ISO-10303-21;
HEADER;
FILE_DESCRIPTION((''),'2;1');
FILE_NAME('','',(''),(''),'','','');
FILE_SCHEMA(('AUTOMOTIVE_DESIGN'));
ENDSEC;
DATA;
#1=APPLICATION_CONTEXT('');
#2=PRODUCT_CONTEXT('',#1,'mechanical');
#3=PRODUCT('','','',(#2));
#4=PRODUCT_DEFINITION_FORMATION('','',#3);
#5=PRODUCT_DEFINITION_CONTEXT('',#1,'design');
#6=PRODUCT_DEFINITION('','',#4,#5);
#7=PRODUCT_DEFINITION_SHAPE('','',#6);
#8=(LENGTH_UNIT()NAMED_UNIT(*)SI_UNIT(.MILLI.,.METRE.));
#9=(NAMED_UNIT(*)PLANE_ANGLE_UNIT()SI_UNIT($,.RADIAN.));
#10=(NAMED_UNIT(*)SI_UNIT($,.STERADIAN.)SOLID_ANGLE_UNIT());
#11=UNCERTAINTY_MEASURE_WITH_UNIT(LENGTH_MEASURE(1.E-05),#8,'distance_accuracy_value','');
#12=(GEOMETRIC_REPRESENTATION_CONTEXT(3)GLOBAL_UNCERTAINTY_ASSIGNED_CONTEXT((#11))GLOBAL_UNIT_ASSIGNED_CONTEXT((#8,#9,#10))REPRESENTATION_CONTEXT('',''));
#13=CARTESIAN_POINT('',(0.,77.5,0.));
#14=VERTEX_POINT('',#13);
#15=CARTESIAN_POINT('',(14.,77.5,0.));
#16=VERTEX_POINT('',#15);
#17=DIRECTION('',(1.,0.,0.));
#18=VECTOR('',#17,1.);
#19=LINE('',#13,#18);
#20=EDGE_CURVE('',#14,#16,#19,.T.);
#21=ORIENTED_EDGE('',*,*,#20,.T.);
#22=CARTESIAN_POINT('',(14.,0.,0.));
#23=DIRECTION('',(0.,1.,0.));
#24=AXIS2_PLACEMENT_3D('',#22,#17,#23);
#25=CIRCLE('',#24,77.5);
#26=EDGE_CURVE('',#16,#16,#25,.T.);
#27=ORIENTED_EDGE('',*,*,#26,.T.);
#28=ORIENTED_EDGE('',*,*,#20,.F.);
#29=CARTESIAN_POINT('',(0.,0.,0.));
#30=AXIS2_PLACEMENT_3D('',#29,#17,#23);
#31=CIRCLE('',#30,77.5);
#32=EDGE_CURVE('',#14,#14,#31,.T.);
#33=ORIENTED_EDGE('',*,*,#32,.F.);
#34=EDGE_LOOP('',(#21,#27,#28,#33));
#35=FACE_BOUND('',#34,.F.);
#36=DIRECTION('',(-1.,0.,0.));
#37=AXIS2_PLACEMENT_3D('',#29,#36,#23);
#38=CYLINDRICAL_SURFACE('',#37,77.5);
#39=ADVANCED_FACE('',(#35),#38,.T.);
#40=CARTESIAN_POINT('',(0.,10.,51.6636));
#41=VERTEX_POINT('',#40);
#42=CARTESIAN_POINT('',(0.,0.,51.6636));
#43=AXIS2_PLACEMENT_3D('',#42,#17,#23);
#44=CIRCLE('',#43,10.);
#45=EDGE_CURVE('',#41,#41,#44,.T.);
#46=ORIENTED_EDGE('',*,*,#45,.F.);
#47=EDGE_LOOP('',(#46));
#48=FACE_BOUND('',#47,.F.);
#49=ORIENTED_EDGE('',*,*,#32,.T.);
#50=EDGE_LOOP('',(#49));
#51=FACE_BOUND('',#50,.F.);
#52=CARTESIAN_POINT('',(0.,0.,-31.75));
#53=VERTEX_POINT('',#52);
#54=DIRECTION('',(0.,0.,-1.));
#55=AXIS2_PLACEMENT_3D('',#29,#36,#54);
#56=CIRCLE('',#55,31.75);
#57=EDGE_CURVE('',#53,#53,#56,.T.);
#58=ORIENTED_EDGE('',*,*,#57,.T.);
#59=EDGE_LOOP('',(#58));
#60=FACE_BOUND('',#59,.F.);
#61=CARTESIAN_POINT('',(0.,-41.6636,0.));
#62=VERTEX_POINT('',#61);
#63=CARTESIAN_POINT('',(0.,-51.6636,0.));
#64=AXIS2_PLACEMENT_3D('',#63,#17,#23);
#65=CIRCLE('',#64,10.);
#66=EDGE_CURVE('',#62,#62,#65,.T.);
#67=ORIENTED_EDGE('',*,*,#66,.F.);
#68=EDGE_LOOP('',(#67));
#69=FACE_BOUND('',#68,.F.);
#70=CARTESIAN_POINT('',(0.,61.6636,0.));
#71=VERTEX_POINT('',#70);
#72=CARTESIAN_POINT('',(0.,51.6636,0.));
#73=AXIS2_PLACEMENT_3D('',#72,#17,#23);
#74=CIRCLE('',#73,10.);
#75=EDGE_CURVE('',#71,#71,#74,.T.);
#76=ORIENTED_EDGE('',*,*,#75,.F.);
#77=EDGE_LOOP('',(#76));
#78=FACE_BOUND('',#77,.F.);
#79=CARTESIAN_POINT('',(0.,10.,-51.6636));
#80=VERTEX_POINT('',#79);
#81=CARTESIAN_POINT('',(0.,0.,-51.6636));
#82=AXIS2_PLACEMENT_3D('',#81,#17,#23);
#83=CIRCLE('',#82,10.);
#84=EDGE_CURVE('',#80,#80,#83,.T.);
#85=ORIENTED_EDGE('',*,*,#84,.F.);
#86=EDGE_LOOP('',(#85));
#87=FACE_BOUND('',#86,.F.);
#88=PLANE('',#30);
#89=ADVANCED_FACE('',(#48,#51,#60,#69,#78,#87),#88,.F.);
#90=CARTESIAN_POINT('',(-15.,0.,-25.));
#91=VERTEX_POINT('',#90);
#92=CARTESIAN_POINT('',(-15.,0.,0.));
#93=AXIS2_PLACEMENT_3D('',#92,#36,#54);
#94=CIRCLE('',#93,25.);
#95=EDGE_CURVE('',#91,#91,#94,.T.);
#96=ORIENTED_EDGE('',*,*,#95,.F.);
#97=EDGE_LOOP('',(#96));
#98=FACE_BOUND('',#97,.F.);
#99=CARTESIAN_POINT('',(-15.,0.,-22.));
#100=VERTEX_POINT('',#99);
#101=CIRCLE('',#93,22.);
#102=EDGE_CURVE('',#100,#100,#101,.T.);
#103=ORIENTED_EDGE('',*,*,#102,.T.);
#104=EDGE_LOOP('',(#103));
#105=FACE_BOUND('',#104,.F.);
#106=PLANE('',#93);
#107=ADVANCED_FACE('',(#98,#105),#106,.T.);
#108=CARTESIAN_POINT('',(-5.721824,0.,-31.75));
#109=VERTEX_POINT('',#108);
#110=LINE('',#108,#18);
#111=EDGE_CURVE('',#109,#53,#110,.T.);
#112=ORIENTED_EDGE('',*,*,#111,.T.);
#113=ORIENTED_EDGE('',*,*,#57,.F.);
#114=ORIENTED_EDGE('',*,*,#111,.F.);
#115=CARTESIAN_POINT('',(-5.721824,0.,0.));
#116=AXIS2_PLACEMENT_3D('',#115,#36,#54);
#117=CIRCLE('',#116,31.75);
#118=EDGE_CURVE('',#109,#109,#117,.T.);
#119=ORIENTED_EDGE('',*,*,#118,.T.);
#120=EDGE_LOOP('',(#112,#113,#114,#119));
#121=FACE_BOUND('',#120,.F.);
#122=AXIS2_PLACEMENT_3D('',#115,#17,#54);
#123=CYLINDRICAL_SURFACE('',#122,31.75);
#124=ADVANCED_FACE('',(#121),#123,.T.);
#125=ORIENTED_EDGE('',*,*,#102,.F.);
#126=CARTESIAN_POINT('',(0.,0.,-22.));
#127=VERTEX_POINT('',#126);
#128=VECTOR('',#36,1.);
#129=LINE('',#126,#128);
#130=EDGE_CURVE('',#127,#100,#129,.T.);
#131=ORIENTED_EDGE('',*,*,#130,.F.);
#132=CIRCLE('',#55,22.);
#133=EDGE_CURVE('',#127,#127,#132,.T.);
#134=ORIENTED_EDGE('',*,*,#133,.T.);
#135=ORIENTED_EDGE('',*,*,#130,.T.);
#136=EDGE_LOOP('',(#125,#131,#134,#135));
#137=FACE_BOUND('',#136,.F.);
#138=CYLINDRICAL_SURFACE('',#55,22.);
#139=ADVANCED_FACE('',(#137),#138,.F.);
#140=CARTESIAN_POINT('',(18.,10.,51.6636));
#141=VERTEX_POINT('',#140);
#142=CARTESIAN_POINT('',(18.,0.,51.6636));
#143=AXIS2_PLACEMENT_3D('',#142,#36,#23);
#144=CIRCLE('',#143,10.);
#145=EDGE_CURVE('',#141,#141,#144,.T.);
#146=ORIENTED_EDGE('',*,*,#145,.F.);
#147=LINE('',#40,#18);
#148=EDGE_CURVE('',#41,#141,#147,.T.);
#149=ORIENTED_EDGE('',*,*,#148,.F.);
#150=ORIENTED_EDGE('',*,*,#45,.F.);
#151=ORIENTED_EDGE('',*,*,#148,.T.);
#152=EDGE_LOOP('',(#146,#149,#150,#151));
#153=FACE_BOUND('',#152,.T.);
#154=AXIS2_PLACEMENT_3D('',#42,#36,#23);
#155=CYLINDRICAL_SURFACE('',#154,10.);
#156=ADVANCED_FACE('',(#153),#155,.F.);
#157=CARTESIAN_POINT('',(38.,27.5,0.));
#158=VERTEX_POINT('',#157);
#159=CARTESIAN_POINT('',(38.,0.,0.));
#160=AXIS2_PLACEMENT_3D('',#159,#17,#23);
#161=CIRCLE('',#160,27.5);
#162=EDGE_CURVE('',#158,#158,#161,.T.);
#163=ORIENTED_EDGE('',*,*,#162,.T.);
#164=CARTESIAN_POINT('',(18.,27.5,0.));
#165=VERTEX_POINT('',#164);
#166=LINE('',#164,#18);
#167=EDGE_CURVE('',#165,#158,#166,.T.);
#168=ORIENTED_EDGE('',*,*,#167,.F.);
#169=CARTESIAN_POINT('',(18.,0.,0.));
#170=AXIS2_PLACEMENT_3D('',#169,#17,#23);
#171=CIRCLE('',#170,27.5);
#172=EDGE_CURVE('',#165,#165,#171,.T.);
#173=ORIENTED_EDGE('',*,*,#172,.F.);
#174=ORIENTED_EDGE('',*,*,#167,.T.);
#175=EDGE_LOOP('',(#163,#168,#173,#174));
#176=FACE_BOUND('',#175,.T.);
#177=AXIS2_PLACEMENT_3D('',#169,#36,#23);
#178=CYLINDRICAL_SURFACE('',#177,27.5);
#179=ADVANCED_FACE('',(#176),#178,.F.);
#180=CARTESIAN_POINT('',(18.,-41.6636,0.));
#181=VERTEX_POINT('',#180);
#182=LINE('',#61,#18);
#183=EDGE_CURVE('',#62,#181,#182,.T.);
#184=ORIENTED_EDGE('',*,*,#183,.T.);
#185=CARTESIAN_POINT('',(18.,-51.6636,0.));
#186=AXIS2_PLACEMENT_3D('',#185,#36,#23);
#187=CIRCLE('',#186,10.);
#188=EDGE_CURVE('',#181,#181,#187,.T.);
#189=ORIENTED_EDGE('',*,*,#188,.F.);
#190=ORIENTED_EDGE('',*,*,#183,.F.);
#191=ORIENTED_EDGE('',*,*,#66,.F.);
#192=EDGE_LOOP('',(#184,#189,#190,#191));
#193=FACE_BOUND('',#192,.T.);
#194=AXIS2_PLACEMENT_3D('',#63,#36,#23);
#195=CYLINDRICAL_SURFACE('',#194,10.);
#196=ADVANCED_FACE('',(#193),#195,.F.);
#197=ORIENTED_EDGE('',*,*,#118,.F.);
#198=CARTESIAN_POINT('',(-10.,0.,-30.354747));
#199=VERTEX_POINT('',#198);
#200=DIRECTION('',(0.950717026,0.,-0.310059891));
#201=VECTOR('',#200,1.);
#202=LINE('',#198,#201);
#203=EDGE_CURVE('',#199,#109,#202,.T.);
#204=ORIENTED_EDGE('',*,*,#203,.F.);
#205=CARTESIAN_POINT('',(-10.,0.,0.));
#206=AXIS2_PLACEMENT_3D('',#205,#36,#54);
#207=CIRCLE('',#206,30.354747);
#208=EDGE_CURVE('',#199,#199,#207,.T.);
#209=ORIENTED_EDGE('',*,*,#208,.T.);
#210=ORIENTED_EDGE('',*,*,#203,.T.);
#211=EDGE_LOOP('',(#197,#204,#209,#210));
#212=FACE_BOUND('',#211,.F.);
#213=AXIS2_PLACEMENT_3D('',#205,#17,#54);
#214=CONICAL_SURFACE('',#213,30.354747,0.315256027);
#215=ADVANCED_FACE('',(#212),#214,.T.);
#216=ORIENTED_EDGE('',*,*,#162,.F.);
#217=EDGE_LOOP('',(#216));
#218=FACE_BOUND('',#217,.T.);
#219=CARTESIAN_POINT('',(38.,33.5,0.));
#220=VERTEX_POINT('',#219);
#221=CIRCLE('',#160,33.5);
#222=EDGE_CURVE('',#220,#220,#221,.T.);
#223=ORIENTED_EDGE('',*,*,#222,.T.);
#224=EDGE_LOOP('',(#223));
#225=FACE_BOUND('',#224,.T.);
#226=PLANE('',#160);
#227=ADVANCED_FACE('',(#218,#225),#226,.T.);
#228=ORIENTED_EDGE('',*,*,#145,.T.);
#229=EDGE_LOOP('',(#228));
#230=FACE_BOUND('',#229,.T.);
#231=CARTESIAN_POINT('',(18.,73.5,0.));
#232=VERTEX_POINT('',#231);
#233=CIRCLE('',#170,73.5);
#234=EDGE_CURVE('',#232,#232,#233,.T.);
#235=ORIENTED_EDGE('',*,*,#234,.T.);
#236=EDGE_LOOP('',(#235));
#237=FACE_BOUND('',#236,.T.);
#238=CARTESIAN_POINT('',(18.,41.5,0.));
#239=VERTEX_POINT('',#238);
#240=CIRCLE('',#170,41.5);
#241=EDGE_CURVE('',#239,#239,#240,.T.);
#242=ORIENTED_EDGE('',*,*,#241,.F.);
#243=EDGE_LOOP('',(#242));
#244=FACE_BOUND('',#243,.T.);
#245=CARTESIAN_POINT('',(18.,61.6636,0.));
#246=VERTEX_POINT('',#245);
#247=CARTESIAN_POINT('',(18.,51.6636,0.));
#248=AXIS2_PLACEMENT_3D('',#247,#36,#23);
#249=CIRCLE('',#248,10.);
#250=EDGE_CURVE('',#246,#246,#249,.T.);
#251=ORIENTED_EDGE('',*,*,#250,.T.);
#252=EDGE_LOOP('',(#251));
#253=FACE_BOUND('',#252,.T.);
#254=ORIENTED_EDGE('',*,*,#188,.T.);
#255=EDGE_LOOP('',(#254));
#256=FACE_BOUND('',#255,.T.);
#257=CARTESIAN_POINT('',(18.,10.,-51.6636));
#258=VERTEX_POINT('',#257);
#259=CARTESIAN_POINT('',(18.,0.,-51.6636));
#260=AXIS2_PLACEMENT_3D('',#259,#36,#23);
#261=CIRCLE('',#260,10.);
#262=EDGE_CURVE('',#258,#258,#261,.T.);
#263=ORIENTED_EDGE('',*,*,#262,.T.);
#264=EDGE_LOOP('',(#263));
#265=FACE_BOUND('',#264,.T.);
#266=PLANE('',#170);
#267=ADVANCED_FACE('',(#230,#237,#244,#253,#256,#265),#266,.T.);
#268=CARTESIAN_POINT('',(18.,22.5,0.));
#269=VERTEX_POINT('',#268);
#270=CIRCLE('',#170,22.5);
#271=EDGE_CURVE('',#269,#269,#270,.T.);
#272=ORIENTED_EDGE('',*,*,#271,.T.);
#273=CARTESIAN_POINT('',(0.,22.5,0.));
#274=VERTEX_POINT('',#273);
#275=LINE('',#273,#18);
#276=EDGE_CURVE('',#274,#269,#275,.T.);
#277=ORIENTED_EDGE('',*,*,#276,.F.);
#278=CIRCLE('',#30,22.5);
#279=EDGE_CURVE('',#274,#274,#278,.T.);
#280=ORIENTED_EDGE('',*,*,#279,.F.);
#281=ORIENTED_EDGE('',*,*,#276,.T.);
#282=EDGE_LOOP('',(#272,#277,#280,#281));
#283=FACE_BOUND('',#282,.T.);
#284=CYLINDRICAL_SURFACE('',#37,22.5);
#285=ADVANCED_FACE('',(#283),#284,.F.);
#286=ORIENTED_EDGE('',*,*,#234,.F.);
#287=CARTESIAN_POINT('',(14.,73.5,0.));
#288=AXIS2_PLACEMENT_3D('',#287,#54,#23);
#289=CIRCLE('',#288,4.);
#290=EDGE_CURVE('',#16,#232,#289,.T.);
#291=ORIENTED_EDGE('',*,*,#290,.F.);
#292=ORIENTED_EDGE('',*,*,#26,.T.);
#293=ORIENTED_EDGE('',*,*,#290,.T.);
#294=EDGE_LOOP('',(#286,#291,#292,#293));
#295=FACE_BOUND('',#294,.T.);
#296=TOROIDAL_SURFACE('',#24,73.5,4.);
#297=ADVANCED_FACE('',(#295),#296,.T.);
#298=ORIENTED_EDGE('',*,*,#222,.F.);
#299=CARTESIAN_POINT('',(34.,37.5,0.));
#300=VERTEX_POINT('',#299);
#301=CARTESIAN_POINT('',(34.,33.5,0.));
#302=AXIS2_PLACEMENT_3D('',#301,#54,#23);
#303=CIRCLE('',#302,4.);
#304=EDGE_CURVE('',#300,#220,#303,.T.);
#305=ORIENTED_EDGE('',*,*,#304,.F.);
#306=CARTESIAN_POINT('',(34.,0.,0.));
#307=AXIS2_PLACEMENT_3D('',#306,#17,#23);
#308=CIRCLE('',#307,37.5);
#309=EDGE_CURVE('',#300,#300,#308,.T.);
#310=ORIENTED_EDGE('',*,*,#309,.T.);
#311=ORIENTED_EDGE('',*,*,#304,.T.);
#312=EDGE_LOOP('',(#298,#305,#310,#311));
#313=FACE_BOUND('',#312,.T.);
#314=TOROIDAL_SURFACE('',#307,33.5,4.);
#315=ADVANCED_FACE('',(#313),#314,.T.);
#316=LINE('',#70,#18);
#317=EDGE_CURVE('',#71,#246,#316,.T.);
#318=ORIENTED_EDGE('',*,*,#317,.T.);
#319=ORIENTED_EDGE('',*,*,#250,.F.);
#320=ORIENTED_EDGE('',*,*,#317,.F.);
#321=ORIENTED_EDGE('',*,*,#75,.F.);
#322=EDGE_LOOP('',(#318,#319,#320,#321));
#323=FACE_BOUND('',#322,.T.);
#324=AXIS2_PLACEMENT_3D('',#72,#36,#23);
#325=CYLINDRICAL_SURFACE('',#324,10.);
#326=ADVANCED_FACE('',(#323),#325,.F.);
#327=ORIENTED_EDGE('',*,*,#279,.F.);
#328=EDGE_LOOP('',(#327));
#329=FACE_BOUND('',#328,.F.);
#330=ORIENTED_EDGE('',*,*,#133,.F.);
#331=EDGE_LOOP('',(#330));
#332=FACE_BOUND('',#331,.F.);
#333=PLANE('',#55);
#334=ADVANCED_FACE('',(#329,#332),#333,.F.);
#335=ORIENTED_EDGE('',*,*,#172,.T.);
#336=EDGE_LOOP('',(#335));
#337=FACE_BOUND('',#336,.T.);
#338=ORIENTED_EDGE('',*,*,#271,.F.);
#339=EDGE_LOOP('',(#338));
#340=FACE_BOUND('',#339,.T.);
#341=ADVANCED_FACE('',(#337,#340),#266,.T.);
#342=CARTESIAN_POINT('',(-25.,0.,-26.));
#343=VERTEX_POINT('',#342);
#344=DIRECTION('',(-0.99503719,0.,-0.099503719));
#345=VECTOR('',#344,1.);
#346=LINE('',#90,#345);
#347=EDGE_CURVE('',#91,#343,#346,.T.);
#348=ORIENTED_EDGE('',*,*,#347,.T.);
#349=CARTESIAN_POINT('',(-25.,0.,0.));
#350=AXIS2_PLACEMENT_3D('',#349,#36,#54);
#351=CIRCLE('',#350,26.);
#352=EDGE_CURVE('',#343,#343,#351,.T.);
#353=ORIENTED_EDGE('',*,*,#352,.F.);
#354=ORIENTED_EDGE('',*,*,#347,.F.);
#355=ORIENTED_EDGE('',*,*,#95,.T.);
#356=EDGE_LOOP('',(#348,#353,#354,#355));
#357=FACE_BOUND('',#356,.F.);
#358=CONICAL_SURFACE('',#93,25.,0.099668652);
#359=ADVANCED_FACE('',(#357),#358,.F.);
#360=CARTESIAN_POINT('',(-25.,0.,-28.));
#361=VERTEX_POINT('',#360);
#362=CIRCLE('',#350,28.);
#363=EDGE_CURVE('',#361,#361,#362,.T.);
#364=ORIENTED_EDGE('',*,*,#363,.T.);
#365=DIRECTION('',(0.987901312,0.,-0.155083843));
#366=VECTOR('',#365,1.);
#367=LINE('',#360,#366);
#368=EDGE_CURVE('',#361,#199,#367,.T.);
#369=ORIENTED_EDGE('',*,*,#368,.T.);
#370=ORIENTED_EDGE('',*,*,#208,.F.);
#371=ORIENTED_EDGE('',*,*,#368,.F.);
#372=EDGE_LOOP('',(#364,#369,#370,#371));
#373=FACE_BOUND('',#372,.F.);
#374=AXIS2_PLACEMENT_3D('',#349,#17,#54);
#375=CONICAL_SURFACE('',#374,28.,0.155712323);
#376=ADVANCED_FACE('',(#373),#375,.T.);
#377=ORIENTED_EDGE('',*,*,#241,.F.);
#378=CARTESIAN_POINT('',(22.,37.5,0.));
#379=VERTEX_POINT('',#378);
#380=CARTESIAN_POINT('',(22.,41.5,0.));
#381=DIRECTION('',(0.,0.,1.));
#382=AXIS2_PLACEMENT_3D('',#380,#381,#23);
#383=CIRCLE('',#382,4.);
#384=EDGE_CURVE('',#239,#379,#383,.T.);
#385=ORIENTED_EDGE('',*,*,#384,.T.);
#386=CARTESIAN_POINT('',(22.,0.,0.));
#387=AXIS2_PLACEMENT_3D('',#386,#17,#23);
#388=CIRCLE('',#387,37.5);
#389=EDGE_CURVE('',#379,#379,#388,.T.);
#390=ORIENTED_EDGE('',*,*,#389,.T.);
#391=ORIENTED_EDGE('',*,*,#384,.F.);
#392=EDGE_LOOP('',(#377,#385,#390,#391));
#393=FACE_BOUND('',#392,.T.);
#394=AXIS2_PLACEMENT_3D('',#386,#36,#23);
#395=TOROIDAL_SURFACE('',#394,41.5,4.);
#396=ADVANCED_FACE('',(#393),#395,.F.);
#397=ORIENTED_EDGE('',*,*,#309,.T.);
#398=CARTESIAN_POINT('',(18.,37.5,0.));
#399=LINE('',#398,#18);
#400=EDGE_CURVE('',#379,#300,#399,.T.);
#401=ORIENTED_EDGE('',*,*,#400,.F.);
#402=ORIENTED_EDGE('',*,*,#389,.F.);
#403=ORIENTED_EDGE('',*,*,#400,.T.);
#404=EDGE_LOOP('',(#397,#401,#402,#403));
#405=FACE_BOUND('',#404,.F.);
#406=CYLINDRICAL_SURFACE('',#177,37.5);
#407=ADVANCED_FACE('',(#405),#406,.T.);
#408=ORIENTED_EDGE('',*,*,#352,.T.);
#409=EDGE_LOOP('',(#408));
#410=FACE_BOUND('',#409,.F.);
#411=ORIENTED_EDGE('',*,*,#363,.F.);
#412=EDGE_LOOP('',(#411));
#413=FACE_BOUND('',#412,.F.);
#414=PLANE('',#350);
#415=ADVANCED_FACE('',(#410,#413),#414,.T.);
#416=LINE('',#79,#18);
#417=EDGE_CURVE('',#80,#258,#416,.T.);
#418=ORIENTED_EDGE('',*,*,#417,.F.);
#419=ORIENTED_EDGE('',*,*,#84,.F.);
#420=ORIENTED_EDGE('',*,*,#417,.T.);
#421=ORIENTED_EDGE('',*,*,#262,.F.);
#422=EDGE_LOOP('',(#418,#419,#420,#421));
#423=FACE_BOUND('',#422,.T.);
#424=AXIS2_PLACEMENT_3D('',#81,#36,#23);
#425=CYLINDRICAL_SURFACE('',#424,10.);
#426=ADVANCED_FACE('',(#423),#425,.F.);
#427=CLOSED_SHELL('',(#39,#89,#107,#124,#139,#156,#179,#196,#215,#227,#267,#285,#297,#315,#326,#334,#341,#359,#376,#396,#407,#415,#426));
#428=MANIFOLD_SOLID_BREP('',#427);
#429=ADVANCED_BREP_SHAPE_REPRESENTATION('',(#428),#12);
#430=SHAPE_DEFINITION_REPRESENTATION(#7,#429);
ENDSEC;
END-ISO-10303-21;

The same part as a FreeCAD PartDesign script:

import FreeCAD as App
import Part
import Sketcher
Q = App.Units.Quantity


def edges_at(feature, points):
    """Names of the edges that pass closest to the given points."""
    edges = feature.Shape.Edges
    near = lambda p: min(range(len(edges)), key=lambda i: edges[i].distToShape(Part.Vertex(*p))[0])
    return sorted({f"Edge{near(p) + 1}" for p in points})

doc = App.newDocument("Part")
body = doc.addObject("PartDesign::Body", "Body")

# Sketch on YZ plane
sketch1 = doc.addObject("Sketcher::SketchObject", "Sketch")
body.addObject(sketch1)
sketch1.AttachmentSupport = (doc.YZ_Plane, [""])
sketch1.MapMode = "FlatFace"
sketch1.addGeometry([
    Part.Circle(App.Vector(0, 0, 0), App.Vector(0, 0, 1), 77.5),
    Part.Circle(App.Vector(0, 0, 0), App.Vector(0, 0, 1), 22.5),
], False)
sketch1.addConstraint([
    Sketcher.Constraint("Coincident", 0, 3, -1, 1),
    Sketcher.Constraint("Coincident", 1, 3, -1, 1),
    Sketcher.Constraint("Diameter", 0, Q("155 mm")),
    Sketcher.Constraint("Diameter", 1, Q("45 mm")),
])
pad1 = doc.addObject("PartDesign::Pad", "Pad")
body.addObject(pad1)
pad1.Profile = sketch1
pad1.Length = 18

# Sketch on YZ plane
sketch2 = doc.addObject("Sketcher::SketchObject", "Sketch001")
body.addObject(sketch2)
sketch2.AttachmentSupport = (doc.YZ_Plane, [""])
sketch2.MapMode = "FlatFace"
sketch2.AttachmentOffset = App.Placement(App.Vector(0, 0, 18), App.Rotation())
sketch2.addGeometry([
    Part.Circle(App.Vector(0, 0, 0), App.Vector(0, 0, 1), 37.5),
    Part.Circle(App.Vector(0, 0, 0), App.Vector(0, 0, 1), 27.5),
], False)
sketch2.addConstraint([
    Sketcher.Constraint("Coincident", 0, 3, -1, 1),
    Sketcher.Constraint("Coincident", 1, 3, -1, 1),
    Sketcher.Constraint("Diameter", 0, Q("75 mm")),
    Sketcher.Constraint("Diameter", 1, Q("55 mm")),
])
pad2 = doc.addObject("PartDesign::Pad", "Pad001")
body.addObject(pad2)
pad2.Profile = sketch2
pad2.Length = 20
doc.recompute()

fillet = doc.addObject("PartDesign::Fillet", "Fillet")
body.addObject(fillet)
fillet.Base = (pad2, edges_at(pad2, [
    (28, 37.5, 0),
    (18, -37.5, 0),
    (38, -37.5, 0),
    (18, -77.5, 0),
]))
fillet.Radius = 4

# Sketch on XZ plane
sketch3 = doc.addObject("Sketcher::SketchObject", "Sketch002")
body.addObject(sketch3)
sketch3.AttachmentSupport = (doc.XZ_Plane, [""])
sketch3.MapMode = "FlatFace"
sketch3.addGeometry([
    Part.LineSegment(App.Vector(-5.721824, -31.75, 0), App.Vector(0, -31.75, 0)),  # 0
    Part.LineSegment(App.Vector(0, -31.75, 0), App.Vector(0, -22, 0)),  # 1
    Part.LineSegment(App.Vector(0, -22, 0), App.Vector(-15, -22, 0)),  # 2
    Part.LineSegment(App.Vector(-15, -22, 0), App.Vector(-15, -25, 0)),  # 3
    Part.LineSegment(App.Vector(-15, -25, 0), App.Vector(-25, -26, 0)),  # 4
    Part.LineSegment(App.Vector(-25, -26, 0), App.Vector(-25, -28, 0)),  # 5
    Part.LineSegment(App.Vector(-25, -28, 0), App.Vector(-10, -30.354747, 0)),  # 6
    Part.LineSegment(App.Vector(-10, -30.354747, 0), App.Vector(-5.721824, -31.75, 0)),  # 7
], False)
sketch3.addConstraint([
    Sketcher.Constraint("Coincident", 0, 2, 1, 1),
    Sketcher.Constraint("Coincident", 1, 2, 2, 1),
    Sketcher.Constraint("Coincident", 2, 2, 3, 1),
    Sketcher.Constraint("Coincident", 3, 2, 4, 1),
    Sketcher.Constraint("Coincident", 4, 2, 5, 1),
    Sketcher.Constraint("Coincident", 5, 2, 6, 1),
    Sketcher.Constraint("Coincident", 6, 2, 7, 1),
    Sketcher.Constraint("Coincident", 7, 2, 0, 1),
    Sketcher.Constraint("Horizontal", 0),
    Sketcher.Constraint("Vertical", 1),
    Sketcher.Constraint("Horizontal", 2),
    Sketcher.Constraint("Vertical", 3),
    Sketcher.Constraint("Vertical", 5),
    Sketcher.Constraint("PointOnObject", 0, 2, -2),
    Sketcher.Constraint("DistanceX", 2, 2, 2, 1, Q("15 mm")),
    Sketcher.Constraint("DistanceY", 3, 2, 3, 1, Q("3 mm")),
    Sketcher.Constraint("DistanceY", 5, 2, 5, 1, Q("2 mm")),
    Sketcher.Constraint("DistanceY", 1, 2, -1, 1, Q("22 mm")),
    Sketcher.Constraint("DistanceX", 4, 2, -1, 1, Q("25 mm")),
    Sketcher.Constraint("DistanceY", 4, 2, -1, 1, Q("26 mm")),
    Sketcher.Constraint("DistanceX", 6, 2, -1, 1, Q("10 mm")),
    Sketcher.Constraint("DistanceY", 1, 1, 1, 2, Q("9.75 mm")),
    Sketcher.Constraint("DistanceX", 0, 1, 0, 2, Q("5.721824 mm")),
    Sketcher.Constraint("Distance", 6, Q("15.183703 mm")),
])
revolution = doc.addObject("PartDesign::Revolution", "Revolution")
body.addObject(revolution)
revolution.Profile = sketch3
revolution.ReferenceAxis = (sketch3, ["H_Axis"])
revolution.Angle = 360

# Sketch on YZ plane
sketch4 = doc.addObject("Sketcher::SketchObject", "Sketch003")
body.addObject(sketch4)
sketch4.AttachmentSupport = (doc.YZ_Plane, [""])
sketch4.MapMode = "FlatFace"
sketch4.addGeometry([
    Part.Circle(App.Vector(0, 51.6636, 0), App.Vector(0, 0, 1), 10),
    Part.Circle(App.Vector(-51.6636, 0, 0), App.Vector(0, 0, 1), 10),
    Part.Circle(App.Vector(0, -51.6636, 0), App.Vector(0, 0, 1), 10),
    Part.Circle(App.Vector(51.6636, 0, 0), App.Vector(0, 0, 1), 10),
], False)
sketch4.addConstraint([
    Sketcher.Constraint("Equal", 0, 1),
    Sketcher.Constraint("Equal", 1, 2),
    Sketcher.Constraint("Equal", 2, 3),
    Sketcher.Constraint("Symmetric", 0, 3, 2, 3, -1, 1),
    Sketcher.Constraint("Symmetric", 1, 3, 3, 3, -1, 1),
    Sketcher.Constraint("PointOnObject", 0, 3, -2),
    Sketcher.Constraint("PointOnObject", 1, 3, -1),
    Sketcher.Constraint("Diameter", 0, Q("20 mm")),
    Sketcher.Constraint("DistanceY", -1, 1, 0, 3, Q("51.6636 mm")),
    Sketcher.Constraint("DistanceX", 1, 3, -1, 1, Q("51.6636 mm")),
])
pocket1 = doc.addObject("PartDesign::Pocket", "Pocket")
body.addObject(pocket1)
pocket1.Profile = sketch4
pocket1.Length = 25
pocket1.Reversed = True

doc.recompute()
